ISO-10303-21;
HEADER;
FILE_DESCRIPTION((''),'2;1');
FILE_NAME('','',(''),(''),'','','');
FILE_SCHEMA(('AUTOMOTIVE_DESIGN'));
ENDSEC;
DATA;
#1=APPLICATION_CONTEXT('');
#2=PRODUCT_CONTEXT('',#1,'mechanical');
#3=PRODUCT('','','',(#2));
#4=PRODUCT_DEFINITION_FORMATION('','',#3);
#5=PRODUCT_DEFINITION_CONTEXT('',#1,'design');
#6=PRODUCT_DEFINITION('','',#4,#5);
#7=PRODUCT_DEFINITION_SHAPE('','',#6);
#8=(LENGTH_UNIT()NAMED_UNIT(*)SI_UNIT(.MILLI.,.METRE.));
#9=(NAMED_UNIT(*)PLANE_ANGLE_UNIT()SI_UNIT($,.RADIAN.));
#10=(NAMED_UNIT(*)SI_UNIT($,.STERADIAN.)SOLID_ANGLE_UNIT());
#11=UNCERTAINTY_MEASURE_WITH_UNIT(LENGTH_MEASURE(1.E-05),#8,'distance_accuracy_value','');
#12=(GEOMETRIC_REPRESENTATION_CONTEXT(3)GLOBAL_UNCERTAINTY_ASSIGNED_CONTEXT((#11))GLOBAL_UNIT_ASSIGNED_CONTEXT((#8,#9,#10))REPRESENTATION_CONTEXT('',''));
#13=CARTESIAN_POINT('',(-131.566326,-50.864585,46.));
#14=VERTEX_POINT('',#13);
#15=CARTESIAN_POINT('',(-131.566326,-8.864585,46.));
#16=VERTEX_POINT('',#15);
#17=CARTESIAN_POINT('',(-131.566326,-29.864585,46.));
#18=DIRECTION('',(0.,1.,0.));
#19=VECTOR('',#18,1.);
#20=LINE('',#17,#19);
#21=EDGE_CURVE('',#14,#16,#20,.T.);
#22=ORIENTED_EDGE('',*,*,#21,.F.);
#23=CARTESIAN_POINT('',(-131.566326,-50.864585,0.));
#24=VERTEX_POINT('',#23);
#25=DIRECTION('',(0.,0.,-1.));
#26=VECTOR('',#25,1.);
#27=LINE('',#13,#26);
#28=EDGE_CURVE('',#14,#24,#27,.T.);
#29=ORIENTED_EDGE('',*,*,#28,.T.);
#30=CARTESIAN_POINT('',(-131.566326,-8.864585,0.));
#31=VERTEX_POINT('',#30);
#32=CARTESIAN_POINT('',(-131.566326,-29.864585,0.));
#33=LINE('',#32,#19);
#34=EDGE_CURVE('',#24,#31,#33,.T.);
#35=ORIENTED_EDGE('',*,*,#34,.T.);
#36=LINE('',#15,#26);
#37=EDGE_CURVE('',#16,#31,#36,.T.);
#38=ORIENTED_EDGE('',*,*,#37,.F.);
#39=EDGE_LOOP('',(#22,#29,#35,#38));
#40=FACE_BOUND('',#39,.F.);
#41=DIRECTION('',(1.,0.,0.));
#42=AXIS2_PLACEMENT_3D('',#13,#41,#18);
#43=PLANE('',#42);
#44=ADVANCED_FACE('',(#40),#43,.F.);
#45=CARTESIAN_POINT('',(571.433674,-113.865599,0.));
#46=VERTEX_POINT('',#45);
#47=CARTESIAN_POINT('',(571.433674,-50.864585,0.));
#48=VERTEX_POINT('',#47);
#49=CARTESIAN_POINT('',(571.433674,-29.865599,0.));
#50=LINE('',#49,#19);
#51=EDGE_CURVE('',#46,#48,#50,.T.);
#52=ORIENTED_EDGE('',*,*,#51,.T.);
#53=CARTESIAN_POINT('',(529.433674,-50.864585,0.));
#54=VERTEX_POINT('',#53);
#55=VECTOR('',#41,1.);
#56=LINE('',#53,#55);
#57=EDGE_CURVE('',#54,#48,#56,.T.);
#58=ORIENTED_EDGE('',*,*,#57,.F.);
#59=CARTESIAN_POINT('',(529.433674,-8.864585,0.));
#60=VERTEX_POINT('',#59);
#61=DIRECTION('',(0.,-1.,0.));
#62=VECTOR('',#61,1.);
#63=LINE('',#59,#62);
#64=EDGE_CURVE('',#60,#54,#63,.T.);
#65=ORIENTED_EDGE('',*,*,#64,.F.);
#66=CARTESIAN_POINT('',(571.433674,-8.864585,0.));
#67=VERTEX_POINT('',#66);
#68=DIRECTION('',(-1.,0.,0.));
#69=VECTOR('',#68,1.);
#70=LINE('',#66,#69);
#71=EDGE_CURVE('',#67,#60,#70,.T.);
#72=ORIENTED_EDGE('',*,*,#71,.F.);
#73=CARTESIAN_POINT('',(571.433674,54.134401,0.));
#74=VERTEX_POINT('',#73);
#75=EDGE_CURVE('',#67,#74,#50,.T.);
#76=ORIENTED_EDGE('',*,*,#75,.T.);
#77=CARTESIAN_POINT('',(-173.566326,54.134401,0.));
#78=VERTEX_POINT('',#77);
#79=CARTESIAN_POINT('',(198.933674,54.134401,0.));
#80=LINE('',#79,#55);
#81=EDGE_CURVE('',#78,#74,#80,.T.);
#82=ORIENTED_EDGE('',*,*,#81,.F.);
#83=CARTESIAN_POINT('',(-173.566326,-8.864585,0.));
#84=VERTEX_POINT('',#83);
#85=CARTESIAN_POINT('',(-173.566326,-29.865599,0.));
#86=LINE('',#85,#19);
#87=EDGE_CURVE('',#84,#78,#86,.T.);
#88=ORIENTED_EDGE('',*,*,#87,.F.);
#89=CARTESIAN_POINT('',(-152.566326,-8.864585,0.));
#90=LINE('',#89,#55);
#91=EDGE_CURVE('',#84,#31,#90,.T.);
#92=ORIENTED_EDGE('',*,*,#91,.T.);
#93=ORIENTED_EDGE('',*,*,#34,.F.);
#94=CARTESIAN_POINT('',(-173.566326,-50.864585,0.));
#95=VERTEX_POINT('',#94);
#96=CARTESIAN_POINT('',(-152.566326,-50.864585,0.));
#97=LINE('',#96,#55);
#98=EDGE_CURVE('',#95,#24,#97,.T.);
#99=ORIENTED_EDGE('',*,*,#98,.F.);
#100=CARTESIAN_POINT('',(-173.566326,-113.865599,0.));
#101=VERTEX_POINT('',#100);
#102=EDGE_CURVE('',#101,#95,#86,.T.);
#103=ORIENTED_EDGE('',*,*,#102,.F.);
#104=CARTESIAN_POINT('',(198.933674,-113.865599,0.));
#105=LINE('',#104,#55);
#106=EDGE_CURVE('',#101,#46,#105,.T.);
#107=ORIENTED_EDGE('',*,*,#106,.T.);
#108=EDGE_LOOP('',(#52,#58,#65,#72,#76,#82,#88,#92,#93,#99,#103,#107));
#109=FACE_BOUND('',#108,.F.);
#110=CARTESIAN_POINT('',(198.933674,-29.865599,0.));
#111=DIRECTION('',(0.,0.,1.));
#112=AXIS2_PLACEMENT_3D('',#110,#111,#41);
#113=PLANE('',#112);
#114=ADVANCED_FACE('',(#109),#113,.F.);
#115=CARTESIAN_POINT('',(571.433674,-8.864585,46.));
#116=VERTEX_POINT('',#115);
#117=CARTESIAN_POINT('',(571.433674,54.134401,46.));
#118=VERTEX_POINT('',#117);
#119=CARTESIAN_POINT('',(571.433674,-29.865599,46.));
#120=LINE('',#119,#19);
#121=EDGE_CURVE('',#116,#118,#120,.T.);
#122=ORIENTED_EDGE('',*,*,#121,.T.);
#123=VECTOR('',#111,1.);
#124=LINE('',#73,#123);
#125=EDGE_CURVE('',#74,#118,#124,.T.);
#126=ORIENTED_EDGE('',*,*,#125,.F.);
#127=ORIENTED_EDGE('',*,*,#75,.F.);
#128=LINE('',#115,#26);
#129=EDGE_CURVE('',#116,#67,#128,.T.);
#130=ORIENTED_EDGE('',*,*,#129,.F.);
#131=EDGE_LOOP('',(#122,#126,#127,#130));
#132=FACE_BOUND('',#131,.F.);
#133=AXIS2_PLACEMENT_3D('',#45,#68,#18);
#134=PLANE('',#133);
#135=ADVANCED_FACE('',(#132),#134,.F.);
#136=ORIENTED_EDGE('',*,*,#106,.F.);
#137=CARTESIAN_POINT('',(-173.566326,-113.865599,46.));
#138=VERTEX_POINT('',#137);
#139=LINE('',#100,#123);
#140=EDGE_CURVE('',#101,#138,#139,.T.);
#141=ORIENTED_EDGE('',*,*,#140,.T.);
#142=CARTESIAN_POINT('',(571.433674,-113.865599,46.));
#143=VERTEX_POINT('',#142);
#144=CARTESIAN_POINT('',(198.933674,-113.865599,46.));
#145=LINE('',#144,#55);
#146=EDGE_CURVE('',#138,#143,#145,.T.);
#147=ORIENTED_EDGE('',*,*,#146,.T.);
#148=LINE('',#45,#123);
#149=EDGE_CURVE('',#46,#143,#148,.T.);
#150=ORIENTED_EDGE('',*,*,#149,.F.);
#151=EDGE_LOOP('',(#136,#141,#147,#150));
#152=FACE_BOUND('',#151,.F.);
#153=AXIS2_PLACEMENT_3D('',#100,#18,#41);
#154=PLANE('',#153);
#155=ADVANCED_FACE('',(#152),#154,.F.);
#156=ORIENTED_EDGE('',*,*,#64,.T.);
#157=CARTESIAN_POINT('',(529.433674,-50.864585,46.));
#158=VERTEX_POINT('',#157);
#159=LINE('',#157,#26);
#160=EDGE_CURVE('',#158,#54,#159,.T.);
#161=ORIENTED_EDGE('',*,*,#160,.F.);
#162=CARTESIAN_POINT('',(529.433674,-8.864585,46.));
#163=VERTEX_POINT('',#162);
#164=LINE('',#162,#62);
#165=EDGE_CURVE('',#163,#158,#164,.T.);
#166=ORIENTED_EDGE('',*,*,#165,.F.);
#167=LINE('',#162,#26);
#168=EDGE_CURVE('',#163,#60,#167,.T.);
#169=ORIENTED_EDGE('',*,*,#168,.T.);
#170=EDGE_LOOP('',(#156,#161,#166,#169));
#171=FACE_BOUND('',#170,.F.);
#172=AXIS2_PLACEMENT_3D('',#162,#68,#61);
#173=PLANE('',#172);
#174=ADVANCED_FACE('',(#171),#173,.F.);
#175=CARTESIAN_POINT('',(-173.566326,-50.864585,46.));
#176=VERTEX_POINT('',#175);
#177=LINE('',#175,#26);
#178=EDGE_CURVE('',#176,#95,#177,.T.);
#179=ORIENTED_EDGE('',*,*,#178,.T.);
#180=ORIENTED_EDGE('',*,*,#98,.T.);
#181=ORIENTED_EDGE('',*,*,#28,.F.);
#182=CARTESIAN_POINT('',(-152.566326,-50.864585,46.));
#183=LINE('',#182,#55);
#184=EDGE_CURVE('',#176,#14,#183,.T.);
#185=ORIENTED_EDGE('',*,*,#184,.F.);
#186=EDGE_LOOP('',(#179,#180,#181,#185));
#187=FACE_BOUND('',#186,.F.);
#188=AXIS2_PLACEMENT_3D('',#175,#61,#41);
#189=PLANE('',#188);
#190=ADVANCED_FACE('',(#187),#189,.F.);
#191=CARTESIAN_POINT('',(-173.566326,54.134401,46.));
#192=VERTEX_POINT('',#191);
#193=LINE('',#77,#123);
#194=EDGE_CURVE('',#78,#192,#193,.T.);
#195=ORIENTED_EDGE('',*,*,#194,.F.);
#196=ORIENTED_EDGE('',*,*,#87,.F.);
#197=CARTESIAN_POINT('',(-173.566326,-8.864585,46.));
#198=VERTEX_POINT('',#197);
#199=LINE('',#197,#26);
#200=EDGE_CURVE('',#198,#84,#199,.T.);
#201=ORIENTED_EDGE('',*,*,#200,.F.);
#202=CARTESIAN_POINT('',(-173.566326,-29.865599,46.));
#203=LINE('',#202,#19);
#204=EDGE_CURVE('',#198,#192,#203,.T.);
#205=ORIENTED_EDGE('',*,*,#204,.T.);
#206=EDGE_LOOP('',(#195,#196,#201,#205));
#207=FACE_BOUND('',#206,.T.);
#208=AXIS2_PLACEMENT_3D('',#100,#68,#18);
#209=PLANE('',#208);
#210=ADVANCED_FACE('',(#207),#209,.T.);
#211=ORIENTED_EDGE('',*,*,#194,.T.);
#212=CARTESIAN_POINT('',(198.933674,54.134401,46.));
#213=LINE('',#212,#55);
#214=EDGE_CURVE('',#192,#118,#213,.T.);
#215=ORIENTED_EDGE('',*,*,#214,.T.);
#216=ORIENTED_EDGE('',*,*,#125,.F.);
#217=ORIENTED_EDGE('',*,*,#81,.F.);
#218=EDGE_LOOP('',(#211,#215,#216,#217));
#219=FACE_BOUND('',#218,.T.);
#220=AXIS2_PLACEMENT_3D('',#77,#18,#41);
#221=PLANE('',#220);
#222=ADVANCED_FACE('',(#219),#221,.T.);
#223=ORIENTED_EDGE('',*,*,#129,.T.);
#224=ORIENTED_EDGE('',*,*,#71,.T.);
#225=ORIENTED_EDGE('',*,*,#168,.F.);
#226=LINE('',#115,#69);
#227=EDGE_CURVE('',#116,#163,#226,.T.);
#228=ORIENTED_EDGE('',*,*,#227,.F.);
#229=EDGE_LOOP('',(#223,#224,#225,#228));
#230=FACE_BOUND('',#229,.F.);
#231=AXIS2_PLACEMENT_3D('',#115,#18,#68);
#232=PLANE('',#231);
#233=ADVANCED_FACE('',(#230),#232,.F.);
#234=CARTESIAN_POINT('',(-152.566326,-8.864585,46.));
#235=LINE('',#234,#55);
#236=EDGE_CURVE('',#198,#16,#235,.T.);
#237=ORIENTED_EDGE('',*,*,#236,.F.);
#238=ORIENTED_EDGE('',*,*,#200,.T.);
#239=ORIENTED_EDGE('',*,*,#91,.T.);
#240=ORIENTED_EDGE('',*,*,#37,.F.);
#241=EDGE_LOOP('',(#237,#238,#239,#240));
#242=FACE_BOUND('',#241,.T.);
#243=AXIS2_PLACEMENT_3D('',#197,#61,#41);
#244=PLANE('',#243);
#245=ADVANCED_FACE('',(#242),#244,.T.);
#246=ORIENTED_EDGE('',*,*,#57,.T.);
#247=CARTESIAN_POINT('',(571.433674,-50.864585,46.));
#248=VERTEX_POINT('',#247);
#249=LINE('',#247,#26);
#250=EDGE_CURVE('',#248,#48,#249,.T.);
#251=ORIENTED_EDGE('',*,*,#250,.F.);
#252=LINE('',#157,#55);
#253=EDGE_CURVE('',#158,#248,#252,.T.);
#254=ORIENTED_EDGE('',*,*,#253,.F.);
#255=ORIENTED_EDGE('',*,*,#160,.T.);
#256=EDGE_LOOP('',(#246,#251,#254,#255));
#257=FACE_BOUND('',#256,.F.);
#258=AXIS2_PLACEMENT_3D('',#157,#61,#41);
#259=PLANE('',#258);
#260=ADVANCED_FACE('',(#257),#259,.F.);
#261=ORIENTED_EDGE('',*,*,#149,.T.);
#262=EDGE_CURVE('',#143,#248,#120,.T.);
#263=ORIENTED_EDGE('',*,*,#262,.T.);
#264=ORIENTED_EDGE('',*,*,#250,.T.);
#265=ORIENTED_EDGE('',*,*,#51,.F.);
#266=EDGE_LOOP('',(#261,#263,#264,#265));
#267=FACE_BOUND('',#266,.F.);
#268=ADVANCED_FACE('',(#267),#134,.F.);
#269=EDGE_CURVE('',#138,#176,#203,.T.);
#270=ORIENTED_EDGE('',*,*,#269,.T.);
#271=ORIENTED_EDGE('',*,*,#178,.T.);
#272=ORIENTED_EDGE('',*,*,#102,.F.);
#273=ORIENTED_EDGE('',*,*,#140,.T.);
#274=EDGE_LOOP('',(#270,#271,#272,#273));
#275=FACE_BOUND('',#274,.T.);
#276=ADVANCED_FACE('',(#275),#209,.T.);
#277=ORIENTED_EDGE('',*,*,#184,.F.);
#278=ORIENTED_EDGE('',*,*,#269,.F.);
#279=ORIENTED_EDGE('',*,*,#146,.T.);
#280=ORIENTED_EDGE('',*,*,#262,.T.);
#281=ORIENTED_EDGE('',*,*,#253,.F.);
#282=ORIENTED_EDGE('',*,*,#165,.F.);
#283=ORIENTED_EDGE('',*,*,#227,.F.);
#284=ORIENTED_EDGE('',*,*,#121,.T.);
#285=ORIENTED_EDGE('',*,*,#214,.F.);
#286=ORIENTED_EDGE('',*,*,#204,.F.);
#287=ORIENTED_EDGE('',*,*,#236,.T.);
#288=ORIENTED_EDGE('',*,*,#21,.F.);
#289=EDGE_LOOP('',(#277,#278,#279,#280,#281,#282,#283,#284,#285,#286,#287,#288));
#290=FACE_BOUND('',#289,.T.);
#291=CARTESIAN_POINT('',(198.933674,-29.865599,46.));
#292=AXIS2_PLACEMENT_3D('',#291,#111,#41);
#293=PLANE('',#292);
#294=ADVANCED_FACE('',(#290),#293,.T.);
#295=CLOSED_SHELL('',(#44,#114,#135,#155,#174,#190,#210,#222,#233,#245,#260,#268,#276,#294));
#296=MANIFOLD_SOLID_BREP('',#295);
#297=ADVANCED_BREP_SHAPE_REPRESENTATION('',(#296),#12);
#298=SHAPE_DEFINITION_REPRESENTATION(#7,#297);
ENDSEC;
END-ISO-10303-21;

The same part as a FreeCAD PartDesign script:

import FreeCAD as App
import Part
import Sketcher

V = App.Vector

doc = App.newDocument("Part")
body = doc.addObject("PartDesign::Body", "Body")

# Sketch on XY plane
sketch1 = doc.addObject("Sketcher::SketchObject", "Sketch")
body.addObject(sketch1)
sketch1.AttachmentSupport = (doc.XY_Plane, [""])
sketch1.MapMode = "FlatFace"
sketch1.addGeometry([
    Part.LineSegment(V(-174, 54, 0), V(-174, -114, 0)),
    Part.LineSegment(V(-174, -114, 0), V(571, -114, 0)),
    Part.LineSegment(V(571, -114, 0), V(571, 54, 0)),
    Part.LineSegment(V(571, 54, 0), V(-174, 54, 0)),
], False)
sketch1.addConstraint([
    Sketcher.Constraint("Coincident", 0, 2, 1, 1),
    Sketcher.Constraint("Coincident", 1, 2, 2, 1),
    Sketcher.Constraint("Coincident", 2, 2, 3, 1),
    Sketcher.Constraint("Coincident", 3, 2, 0, 1),
    Sketcher.Constraint("Vertical", 0),
    Sketcher.Constraint("Horizontal", 1),
    Sketcher.Constraint("Vertical", 2),
    Sketcher.Constraint("Horizontal", 3),
    Sketcher.Constraint("DistanceX", 1, 1, 1, 2, 745.0),
    Sketcher.Constraint("DistanceY", 0, 2, 0, 1, 168.0),
    Sketcher.Constraint("DistanceY", 0, 2, -1, 1, 113.865599),
    Sketcher.Constraint("DistanceX", 0, 2, -1, 1, 173.566326),
])
pad1 = doc.addObject("PartDesign::Pad", "Pad")
body.addObject(pad1)
pad1.Profile = sketch1
pad1.Length = 46

# Sketch on XY plane
sketch2 = doc.addObject("Sketcher::SketchObject", "Sketch001")
body.addObject(sketch2)
sketch2.AttachmentSupport = (doc.XY_Plane, [""])
sketch2.MapMode = "FlatFace"
sketch2.AttachmentOffset = App.Placement(V(0, 0, 46), App.Rotation())
sketch2.addGeometry([
    Part.LineSegment(V(529, -9, 0), V(529, -51, 0)),
    Part.LineSegment(V(529, -51, 0), V(571, -51, 0)),
    Part.LineSegment(V(571, -51, 0), V(571, -9, 0)),
    Part.LineSegment(V(571, -9, 0), V(529, -9, 0)),
], False)
sketch2.addConstraint([
    Sketcher.Constraint("Coincident", 0, 2, 1, 1),
    Sketcher.Constraint("Coincident", 1, 2, 2, 1),
    Sketcher.Constraint("Coincident", 2, 2, 3, 1),
    Sketcher.Constraint("Coincident", 3, 2, 0, 1),
    Sketcher.Constraint("Vertical", 0),
    Sketcher.Constraint("Horizontal", 1),
    Sketcher.Constraint("Vertical", 2),
    Sketcher.Constraint("Horizontal", 3),
    Sketcher.Constraint("Equal", 3, 0),
    Sketcher.Constraint("DistanceX", 1, 1, 1, 2, 42.0),
    Sketcher.Constraint("DistanceX", -1, 1, 0, 2, 529.433674),
    Sketcher.Constraint("DistanceY", 0, 2, -1, 1, 50.864585),
])
pocket1 = doc.addObject("PartDesign::Pocket", "Pocket")
body.addObject(pocket1)
pocket1.Profile = sketch2
pocket1.Length = 46

# Sketch on XY plane
sketch3 = doc.addObject("Sketcher::SketchObject", "Sketch002")
body.addObject(sketch3)
sketch3.AttachmentSupport = (doc.XY_Plane, [""])
sketch3.MapMode = "FlatFace"
sketch3.AttachmentOffset = App.Placement(V(0, 0, 46), App.Rotation())
sketch3.addGeometry([
    Part.LineSegment(V(-174, -9, 0), V(-174, -51, 0)),
    Part.LineSegment(V(-174, -51, 0), V(-132, -51, 0)),
    Part.LineSegment(V(-132, -51, 0), V(-132, -9, 0)),
    Part.LineSegment(V(-132, -9, 0), V(-174, -9, 0)),
], False)
sketch3.addConstraint([
    Sketcher.Constraint("Coincident", 0, 2, 1, 1),
    Sketcher.Constraint("Coincident", 1, 2, 2, 1),
    Sketcher.Constraint("Coincident", 2, 2, 3, 1),
    Sketcher.Constraint("Coincident", 3, 2, 0, 1),
    Sketcher.Constraint("Vertical", 0),
    Sketcher.Constraint("Horizontal", 1),
    Sketcher.Constraint("Vertical", 2),
    Sketcher.Constraint("Horizontal", 3),
    Sketcher.Constraint("Equal", 3, 0),
    Sketcher.Constraint("DistanceX", 1, 1, 1, 2, 42.0),
    Sketcher.Constraint("DistanceX", 0, 2, -1, 1, 173.566326),
    Sketcher.Constraint("DistanceY", 0, 2, -1, 1, 50.864585),
])
pocket2 = doc.addObject("PartDesign::Pocket", "Pocket001")
body.addObject(pocket2)
pocket2.Profile = sketch3
pocket2.Length = 46

doc.recompute()
